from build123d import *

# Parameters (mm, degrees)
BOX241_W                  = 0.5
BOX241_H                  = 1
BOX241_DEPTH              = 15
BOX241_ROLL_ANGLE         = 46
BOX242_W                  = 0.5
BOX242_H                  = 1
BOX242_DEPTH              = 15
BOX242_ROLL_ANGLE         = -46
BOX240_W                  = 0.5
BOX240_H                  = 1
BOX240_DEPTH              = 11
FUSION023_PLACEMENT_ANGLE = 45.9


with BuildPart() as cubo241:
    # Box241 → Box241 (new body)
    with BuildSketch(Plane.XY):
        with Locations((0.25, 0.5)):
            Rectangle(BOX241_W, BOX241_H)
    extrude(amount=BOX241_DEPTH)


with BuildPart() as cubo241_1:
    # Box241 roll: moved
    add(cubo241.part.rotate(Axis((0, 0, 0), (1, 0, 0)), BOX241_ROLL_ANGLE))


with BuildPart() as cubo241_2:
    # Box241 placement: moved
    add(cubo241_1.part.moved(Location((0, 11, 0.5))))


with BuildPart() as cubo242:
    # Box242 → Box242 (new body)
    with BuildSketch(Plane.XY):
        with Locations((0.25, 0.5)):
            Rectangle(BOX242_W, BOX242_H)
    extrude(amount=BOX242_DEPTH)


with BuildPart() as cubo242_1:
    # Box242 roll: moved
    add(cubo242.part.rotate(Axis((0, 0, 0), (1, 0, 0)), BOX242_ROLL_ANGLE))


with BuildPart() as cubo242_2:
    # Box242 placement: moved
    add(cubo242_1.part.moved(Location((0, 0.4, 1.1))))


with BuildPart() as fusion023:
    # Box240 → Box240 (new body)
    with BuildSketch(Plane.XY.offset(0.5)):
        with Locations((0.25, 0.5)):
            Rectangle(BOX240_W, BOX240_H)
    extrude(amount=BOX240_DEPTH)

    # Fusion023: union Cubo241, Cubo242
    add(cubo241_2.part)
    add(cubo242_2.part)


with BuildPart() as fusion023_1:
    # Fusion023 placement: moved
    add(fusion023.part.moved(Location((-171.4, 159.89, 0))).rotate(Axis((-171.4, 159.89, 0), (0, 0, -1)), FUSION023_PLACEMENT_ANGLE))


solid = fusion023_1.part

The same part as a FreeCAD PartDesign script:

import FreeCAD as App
import Part
import Sketcher

V = App.Vector
Q = App.Units.Quantity

doc = App.newDocument("Part")
body = doc.addObject("PartDesign::Body", "Body")

sketch1 = body.newObject("Sketcher::SketchObject", "Sketch")
sketch1.AttachmentSupport = (doc.getObject("XY_Plane"), [""])
sketch1.MapMode = "FlatFace"
sketch1.addGeometry([
    Part.LineSegment(V(0, 1, 0), V(0, 0, 0)),
    Part.LineSegment(V(0, 0, 0), V(0.5, 0, 0)),
    Part.LineSegment(V(0.5, 0, 0), V(0.5, 1, 0)),
    Part.LineSegment(V(0.5, 1, 0), V(0, 1, 0)),
], False)
sketch1.addConstraint([
    Sketcher.Constraint("Coincident", 0, 2, 1, 1),
    Sketcher.Constraint("Coincident", 1, 2, 2, 1),
    Sketcher.Constraint("Coincident", 2, 2, 3, 1),
    Sketcher.Constraint("Coincident", 3, 2, 0, 1),
    Sketcher.Constraint("Vertical", 0),
    Sketcher.Constraint("Horizontal", 1),
    Sketcher.Constraint("Vertical", 2),
    Sketcher.Constraint("Horizontal", 3),
    Sketcher.Constraint("Coincident", 0, 2, -1, 1),
    Sketcher.Constraint("DistanceY", 0, 2, 0, 1, Q("1 mm")),
    Sketcher.Constraint("DistanceX", 1, 1, 1, 2, Q("0.5 mm")),
])
pad1 = body.newObject("PartDesign::Pad", "Pad")
pad1.Profile = sketch1
pad1.Length = 15
body2 = doc.addObject("PartDesign::Body", "Body001")
doc.recompute()

body.Placement = App.Placement(V(0, 0, 0), App.Rotation(V(1, 0, 0), 46))
boolean = body2.newObject("PartDesign::Boolean", "Boolean")
boolean.Type = "Fuse"
boolean.addObjects([body])
body3 = doc.addObject("PartDesign::Body", "Body002")
doc.recompute()

body2.Placement = App.Placement(V(0, 11, 0.5), App.Rotation(V(0, 0, 1), 0))
boolean2 = body3.newObject("PartDesign::Boolean", "Boolean001")
boolean2.Type = "Fuse"
boolean2.addObjects([body2])
body4 = doc.addObject("PartDesign::Body", "Body003")

sketch2 = body4.newObject("Sketcher::SketchObject", "Sketch001")
sketch2.AttachmentSupport = (doc.getObject("XY_Plane003"), [""])
sketch2.MapMode = "FlatFace"
sketch2.addGeometry([
    Part.LineSegment(V(0, 1, 0), V(0, 0, 0)),
    Part.LineSegment(V(0, 0, 0), V(0.5, 0, 0)),
    Part.LineSegment(V(0.5, 0, 0), V(0.5, 1, 0)),
    Part.LineSegment(V(0.5, 1, 0), V(0, 1, 0)),
], False)
sketch2.addConstraint([
    Sketcher.Constraint("Coincident", 0, 2, 1, 1),
    Sketcher.Constraint("Coincident", 1, 2, 2, 1),
    Sketcher.Constraint("Coincident", 2, 2, 3, 1),
    Sketcher.Constraint("Coincident", 3, 2, 0, 1),
    Sketcher.Constraint("Vertical", 0),
    Sketcher.Constraint("Horizontal", 1),
    Sketcher.Constraint("Vertical", 2),
    Sketcher.Constraint("Horizontal", 3),
    Sketcher.Constraint("Coincident", 0, 2, -1, 1),
    Sketcher.Constraint("DistanceY", 0, 2, 0, 1, Q("1 mm")),
    Sketcher.Constraint("DistanceX", 1, 1, 1, 2, Q("0.5 mm")),
])
pad2 = body4.newObject("PartDesign::Pad", "Pad001")
pad2.Profile = sketch2
pad2.Length = 15
body5 = doc.addObject("PartDesign::Body", "Body004")
doc.recompute()

body4.Placement = App.Placement(V(0, 0, 0), App.Rotation(V(1, 0, 0), 314))
boolean3 = body5.newObject("PartDesign::Boolean", "Boolean002")
boolean3.Type = "Fuse"
boolean3.addObjects([body4])
body6 = doc.addObject("PartDesign::Body", "Body005")
doc.recompute()

body5.Placement = App.Placement(V(0, 0.4, 1.1), App.Rotation(V(0, 0, 1), 0))
boolean4 = body6.newObject("PartDesign::Boolean", "Boolean003")
boolean4.Type = "Fuse"
boolean4.addObjects([body5])
body7 = doc.addObject("PartDesign::Body", "Body006")

sketch3 = body7.newObject("Sketcher::SketchObject", "Sketch002")
sketch3.AttachmentSupport = (doc.getObject("XY_Plane006"), [""])
sketch3.MapMode = "FlatFace"
sketch3.AttachmentOffset = App.Placement(V(0, 0, 0.5), App.Rotation())
sketch3.addGeometry([
    Part.LineSegment(V(0, 1, 0), V(0, 0, 0)),
    Part.LineSegment(V(0, 0, 0), V(0.5, 0, 0)),
    Part.LineSegment(V(0.5, 0, 0), V(0.5, 1, 0)),
    Part.LineSegment(V(0.5, 1, 0), V(0, 1, 0)),
], False)
sketch3.addConstraint([
    Sketcher.Constraint("Coincident", 0, 2, 1, 1),
    Sketcher.Constraint("Coincident", 1, 2, 2, 1),
    Sketcher.Constraint("Coincident", 2, 2, 3, 1),
    Sketcher.Constraint("Coincident", 3, 2, 0, 1),
    Sketcher.Constraint("Vertical", 0),
    Sketcher.Constraint("Horizontal", 1),
    Sketcher.Constraint("Vertical", 2),
    Sketcher.Constraint("Horizontal", 3),
    Sketcher.Constraint("Coincident", 0, 2, -1, 1),
    Sketcher.Constraint("DistanceY", 0, 2, 0, 1, Q("1 mm")),
    Sketcher.Constraint("DistanceX", 1, 1, 1, 2, Q("0.5 mm")),
])
pad3 = body7.newObject("PartDesign::Pad", "Pad002")
pad3.Profile = sketch3
pad3.Length = 11
doc.recompute()

boolean5 = body7.newObject("PartDesign::Boolean", "Boolean004")
boolean5.Type = "Fuse"
boolean5.addObjects([body3])
doc.recompute()

boolean6 = body7.newObject("PartDesign::Boolean", "Boolean005")
boolean6.Type = "Fuse"
boolean6.addObjects([body6])
body8 = doc.addObject("PartDesign::Body", "Body007")
doc.recompute()

body7.Placement = App.Placement(V(-171.4, 159.89, 0), App.Rotation(V(0, 0, -1), 45.9))
boolean7 = body8.newObject("PartDesign::Boolean", "Boolean006")
boolean7.Type = "Fuse"
boolean7.addObjects([body7])

doc.recompute()
